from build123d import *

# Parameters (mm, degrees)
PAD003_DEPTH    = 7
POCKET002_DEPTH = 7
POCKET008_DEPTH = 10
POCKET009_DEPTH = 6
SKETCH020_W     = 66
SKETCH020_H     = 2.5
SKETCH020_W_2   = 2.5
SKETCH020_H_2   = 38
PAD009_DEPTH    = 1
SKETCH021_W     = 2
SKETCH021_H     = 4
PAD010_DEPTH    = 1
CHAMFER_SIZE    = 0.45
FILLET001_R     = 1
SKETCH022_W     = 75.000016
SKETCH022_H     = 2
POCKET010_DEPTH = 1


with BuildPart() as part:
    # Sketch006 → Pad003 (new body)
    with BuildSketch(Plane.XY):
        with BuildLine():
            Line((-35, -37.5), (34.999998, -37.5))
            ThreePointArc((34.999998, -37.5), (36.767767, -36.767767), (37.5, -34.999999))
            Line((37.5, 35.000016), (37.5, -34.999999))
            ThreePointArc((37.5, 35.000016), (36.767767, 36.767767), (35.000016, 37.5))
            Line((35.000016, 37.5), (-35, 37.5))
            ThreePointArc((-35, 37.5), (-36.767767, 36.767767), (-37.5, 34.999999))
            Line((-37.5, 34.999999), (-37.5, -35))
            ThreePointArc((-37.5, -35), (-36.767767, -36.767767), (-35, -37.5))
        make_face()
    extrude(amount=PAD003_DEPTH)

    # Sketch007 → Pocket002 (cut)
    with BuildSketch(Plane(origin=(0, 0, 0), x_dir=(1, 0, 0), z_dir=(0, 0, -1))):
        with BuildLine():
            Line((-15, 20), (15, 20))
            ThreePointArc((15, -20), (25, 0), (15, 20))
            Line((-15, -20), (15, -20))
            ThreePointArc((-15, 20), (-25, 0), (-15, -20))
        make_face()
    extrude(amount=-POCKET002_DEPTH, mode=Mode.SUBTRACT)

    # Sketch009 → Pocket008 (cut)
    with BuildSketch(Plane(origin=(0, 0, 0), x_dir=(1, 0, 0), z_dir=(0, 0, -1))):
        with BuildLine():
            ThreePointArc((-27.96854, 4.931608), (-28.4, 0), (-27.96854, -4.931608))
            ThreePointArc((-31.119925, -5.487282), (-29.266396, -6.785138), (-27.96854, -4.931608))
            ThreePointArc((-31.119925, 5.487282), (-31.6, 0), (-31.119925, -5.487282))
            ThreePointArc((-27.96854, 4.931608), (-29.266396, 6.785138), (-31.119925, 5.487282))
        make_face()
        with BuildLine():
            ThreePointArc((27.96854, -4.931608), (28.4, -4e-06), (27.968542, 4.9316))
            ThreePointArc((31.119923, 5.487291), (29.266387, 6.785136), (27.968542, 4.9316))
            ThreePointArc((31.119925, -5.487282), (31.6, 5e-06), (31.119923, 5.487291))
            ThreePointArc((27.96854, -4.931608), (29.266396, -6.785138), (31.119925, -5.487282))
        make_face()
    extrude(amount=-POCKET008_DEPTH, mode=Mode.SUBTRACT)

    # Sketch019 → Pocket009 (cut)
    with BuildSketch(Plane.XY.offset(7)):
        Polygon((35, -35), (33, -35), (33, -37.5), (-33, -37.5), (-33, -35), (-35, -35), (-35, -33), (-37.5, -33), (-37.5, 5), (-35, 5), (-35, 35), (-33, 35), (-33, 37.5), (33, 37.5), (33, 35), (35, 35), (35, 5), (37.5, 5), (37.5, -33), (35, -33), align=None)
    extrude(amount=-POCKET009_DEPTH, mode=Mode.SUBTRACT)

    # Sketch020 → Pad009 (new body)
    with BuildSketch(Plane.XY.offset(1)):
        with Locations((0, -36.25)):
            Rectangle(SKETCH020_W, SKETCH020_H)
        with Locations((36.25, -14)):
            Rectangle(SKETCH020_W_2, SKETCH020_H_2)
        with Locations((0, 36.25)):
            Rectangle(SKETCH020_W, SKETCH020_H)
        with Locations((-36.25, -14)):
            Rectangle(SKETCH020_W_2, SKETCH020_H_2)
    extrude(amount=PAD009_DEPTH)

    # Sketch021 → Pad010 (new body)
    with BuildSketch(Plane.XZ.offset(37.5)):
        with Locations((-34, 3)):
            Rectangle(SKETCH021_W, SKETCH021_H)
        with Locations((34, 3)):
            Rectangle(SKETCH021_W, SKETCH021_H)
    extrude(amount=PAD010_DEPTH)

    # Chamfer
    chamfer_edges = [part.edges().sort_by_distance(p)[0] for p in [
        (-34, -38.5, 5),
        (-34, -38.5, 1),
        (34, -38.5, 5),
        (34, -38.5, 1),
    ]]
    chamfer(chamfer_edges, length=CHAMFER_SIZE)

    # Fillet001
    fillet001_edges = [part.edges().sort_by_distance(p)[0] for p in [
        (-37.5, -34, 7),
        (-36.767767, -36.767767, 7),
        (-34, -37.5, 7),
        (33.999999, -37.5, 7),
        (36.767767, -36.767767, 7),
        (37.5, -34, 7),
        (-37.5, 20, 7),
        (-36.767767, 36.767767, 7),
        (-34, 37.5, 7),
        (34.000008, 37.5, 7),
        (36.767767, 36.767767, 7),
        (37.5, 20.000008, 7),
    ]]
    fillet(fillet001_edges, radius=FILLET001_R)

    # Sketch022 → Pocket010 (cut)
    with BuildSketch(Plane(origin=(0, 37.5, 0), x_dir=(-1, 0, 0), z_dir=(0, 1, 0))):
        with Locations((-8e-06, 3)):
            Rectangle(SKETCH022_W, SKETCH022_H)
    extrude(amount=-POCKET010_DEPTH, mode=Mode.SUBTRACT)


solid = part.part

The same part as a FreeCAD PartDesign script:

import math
import FreeCAD as App
import Part
import Sketcher

V = App.Vector
Q = App.Units.Quantity


def edges_at(feature, points):
    """Names of the edges that pass closest to the given points."""
    edges = feature.Shape.Edges
    near = lambda p: min(range(len(edges)), key=lambda i: edges[i].distToShape(Part.Vertex(*p))[0])
    return sorted({f"Edge{near(p) + 1}" for p in points})


def add_polygon(sketch, points):
    """Adds a closed chain of lines whose ends are joined by coincident constraints."""
    first, n = sketch.GeometryCount, len(points)
    for a, b in zip(points, points[1:] + points[:1]):
        sketch.addGeometry(Part.LineSegment(App.Vector(*a, 0), App.Vector(*b, 0)), False)
    for i in range(n):
        sketch.addConstraint(Sketcher.Constraint("Coincident", first + i, 2, first + (i + 1) % n, 1))

doc = App.newDocument("Part")
body = doc.addObject("PartDesign::Body", "Body")

# Sketch on XY plane
sketch1 = doc.addObject("Sketcher::SketchObject", "Sketch")
body.addObject(sketch1)
sketch1.AttachmentSupport = (doc.XY_Plane, [""])
sketch1.MapMode = "FlatFace"
sketch1.addGeometry([
    Part.LineSegment(V(-35, -37.5, 0), V(35, -37.5, 0)),  # 0
    Part.ArcOfCircle(Part.Circle(V(35, -35, 0), V(0, 0, 1), 2.5), math.radians(-90), math.radians(0)),  # 1
    Part.LineSegment(V(37.5, -35, 0), V(37.5, 35, 0)),  # 2
    Part.ArcOfCircle(Part.Circle(V(35, 35, 0), V(0, 0, 1), 2.5), math.radians(0), math.radians(90)),  # 3
    Part.LineSegment(V(35, 37.5, 0), V(-35, 37.5, 0)),  # 4
    Part.ArcOfCircle(Part.Circle(V(-35, 35, 0), V(0, 0, 1), 2.5), math.radians(90), math.radians(180)),  # 5
    Part.LineSegment(V(-37.5, 35, 0), V(-37.5, -35, 0)),  # 6
    Part.ArcOfCircle(Part.Circle(V(-35, -35, 0), V(0, 0, 1), 2.5), math.radians(180), math.radians(270)),  # 7
], False)
sketch1.addConstraint([
    Sketcher.Constraint("Tangent", 0, 2, 1, 1),
    Sketcher.Constraint("Tangent", 1, 2, 2, 1),
    Sketcher.Constraint("Coincident", 2, 2, 3, 1),
    Sketcher.Constraint("Coincident", 3, 2, 4, 1),
    Sketcher.Constraint("Tangent", 4, 2, 5, 1),
    Sketcher.Constraint("Tangent", 5, 2, 6, 1),
    Sketcher.Constraint("Tangent", 6, 2, 7, 1),
    Sketcher.Constraint("Tangent", 7, 2, 0, 1),
    Sketcher.Constraint("Horizontal", 0),
    Sketcher.Constraint("Vertical", 2),
    Sketcher.Constraint("Horizontal", 4),
    Sketcher.Constraint("Vertical", 6),
    Sketcher.Constraint("Equal", 1, 3),
    Sketcher.Constraint("Equal", 3, 5),
    Sketcher.Constraint("Equal", 5, 7),
    Sketcher.Constraint("Symmetric", 1, 3, 5, 3, -1, 1),
    Sketcher.Constraint("Equal", 4, 2),
    Sketcher.Constraint("Equal", 0, 6),
    Sketcher.Constraint("Radius", 1, Q("2.5 mm")),
    Sketcher.Constraint("DistanceX", 0, 1, 0, 2, Q("69.999998 mm")),
    Sketcher.Constraint("DistanceX", 4, 2, 4, 1, Q("70.000016 mm")),
])
pad1 = doc.addObject("PartDesign::Pad", "Pad")
body.addObject(pad1)
pad1.Profile = sketch1
pad1.Length = 7

# Sketch on XY plane
sketch2 = doc.addObject("Sketcher::SketchObject", "Sketch001")
body.addObject(sketch2)
sketch2.AttachmentSupport = (doc.XY_Plane, [""])
sketch2.MapMode = "FlatFace"
sketch2.addGeometry([
    Part.LineSegment(V(15, -20, 0), V(-15, -20, 0)),
    Part.ArcOfCircle(Part.Circle(V(0, 0, 0), V(0, 0, 1), 25), math.radians(127), math.radians(233)),
    Part.LineSegment(V(-15, 20, 0), V(15, 20, 0)),
    Part.ArcOfCircle(Part.Circle(V(0, 0, 0), V(0, 0, 1), 25), math.radians(-53), math.radians(53)),
], False)
sketch2.addConstraint([
    Sketcher.Constraint("Coincident", 0, 2, 1, 2),
    Sketcher.Constraint("Coincident", 1, 1, 2, 1),
    Sketcher.Constraint("Coincident", 2, 2, 3, 2),
    Sketcher.Constraint("Coincident", 3, 1, 0, 1),
    Sketcher.Constraint("Horizontal", 0),
    Sketcher.Constraint("Horizontal", 2),
    Sketcher.Constraint("Coincident", 1, 3, -1, 1),
    Sketcher.Constraint("Coincident", 3, 3, -1, 1),
    Sketcher.Constraint("Equal", 1, 3),
    Sketcher.Constraint("Vertical", 0, 2, 1, 1),
    Sketcher.Constraint("Radius", 1, Q("25 mm")),
    Sketcher.Constraint("DistanceX", 0, 2, 0, 1, Q("30 mm")),
])
pocket1 = doc.addObject("PartDesign::Pocket", "Pocket")
body.addObject(pocket1)
pocket1.Profile = sketch2
pocket1.Length = 7
pocket1.Reversed = True

# Sketch on XY plane
sketch3 = doc.addObject("Sketcher::SketchObject", "Sketch002")
body.addObject(sketch3)
sketch3.AttachmentSupport = (doc.XY_Plane, [""])
sketch3.MapMode = "FlatFace"
sketch3.addGeometry([
    Part.ArcOfCircle(Part.Circle(V(0, 0, 0), V(0, 0, 1), 28.4), math.radians(170), math.radians(190)),  # 0
    Part.ArcOfCircle(Part.Circle(V(-29.5, -5.2, 0), V(0, 0, 1), 1.6), math.radians(-170), math.radians(10)),  # 1
    Part.ArcOfCircle(Part.Circle(V(0, 0, 0), V(0, 0, 1), 31.6), math.radians(170), math.radians(190)),  # 2
    Part.ArcOfCircle(Part.Circle(V(-29.5, 5.2, 0), V(0, 0, 1), 1.6), math.radians(-10), math.radians(170)),  # 3
    Part.ArcOfCircle(Part.Circle(V(0, 0, 0), V(0, 0, 1), 28.4), math.radians(-10), math.radians(10)),  # 4
    Part.ArcOfCircle(Part.Circle(V(29.5, 5.2, 0), V(0, 0, 1), 1.6), math.radians(10), math.radians(190)),  # 5
    Part.ArcOfCircle(Part.Circle(V(0, 0, 0), V(0, 0, 1), 31.6), math.radians(-10), math.radians(10)),  # 6
    Part.ArcOfCircle(Part.Circle(V(29.5, -5.2, 0), V(0, 0, 1), 1.6), math.radians(170), math.radians(350)),  # 7
], False)
sketch3.addConstraint([
    Sketcher.Constraint("Tangent", 0, 2, 1, 2),
    Sketcher.Constraint("Tangent", 1, 1, 2, 2),
    Sketcher.Constraint("Tangent", 2, 1, 3, 2),
    Sketcher.Constraint("Tangent", 3, 1, 0, 1),
    Sketcher.Constraint("Tangent", 4, 2, 5, 2),
    Sketcher.Constraint("Tangent", 5, 1, 6, 2),
    Sketcher.Constraint("Coincident", 6, 1, 7, 2),
    Sketcher.Constraint("Coincident", 7, 1, 4, 1),
    Sketcher.Constraint("Coincident", 2, 3, -1, 1),
    Sketcher.Constraint("Coincident", 4, 3, -1, 1),
    Sketcher.Constraint("Equal", 1, 3),
    Sketcher.Constraint("Equal", 3, 5),
    Sketcher.Constraint("Equal", 5, 7),
    Sketcher.Constraint("Symmetric", 1, 3, 5, 3, -1, 1),
    Sketcher.Constraint("Horizontal", 3, 3, 5, 3),
    Sketcher.Constraint("Horizontal", 1, 3, 7, 3),
    Sketcher.Constraint("Vertical", 4, 2, 7, 1),
    Sketcher.Constraint("Radius", 1, Q("1.6 mm")),
    Sketcher.Constraint("Radius", 0, Q("28.399985 mm")),
    Sketcher.Constraint("Radius", 2, Q("31.599996 mm")),
    Sketcher.Constraint("Radius", 6, Q("31.599982 mm")),
    Sketcher.Constraint("DistanceY", 7, 1, -1, 1, Q("4.9316 mm")),
    Sketcher.Constraint("DistanceY", 6, 1, 4, 2, Q("10.418899 mm")),
])
pocket2 = doc.addObject("PartDesign::Pocket", "Pocket001")
body.addObject(pocket2)
pocket2.Profile = sketch3
pocket2.Length = 10
pocket2.Reversed = True

# Sketch on XY plane
sketch4 = doc.addObject("Sketcher::SketchObject", "Sketch003")
body.addObject(sketch4)
sketch4.AttachmentSupport = (doc.XY_Plane, [""])
sketch4.MapMode = "FlatFace"
sketch4.AttachmentOffset = App.Placement(V(0, 0, 7), App.Rotation())
add_polygon(sketch4, [(33, -35), (35, -35), (35, -33), (37.5, -33), (37.5, 5), (35, 5), (35, 35), (33, 35), (33, 37.5), (-33, 37.5), (-33, 35), (-35, 35), (-35, 5), (-37.5, 5), (-37.5, -33), (-35, -33), (-35, -35), (-33, -35), (-33, -37.5), (33, -37.5)])  # lines 0-19
sketch4.addConstraint([
    Sketcher.Constraint("Horizontal", 0),
    Sketcher.Constraint("Vertical", 1),
    Sketcher.Constraint("Horizontal", 2),
    Sketcher.Constraint("Vertical", 3),
    Sketcher.Constraint("Horizontal", 4),
    Sketcher.Constraint("Vertical", 5),
    Sketcher.Constraint("Horizontal", 6),
    Sketcher.Constraint("Vertical", 7),
    Sketcher.Constraint("Horizontal", 8),
    Sketcher.Constraint("Vertical", 9),
    Sketcher.Constraint("Horizontal", 10),
    Sketcher.Constraint("Vertical", 11),
    Sketcher.Constraint("Horizontal", 12),
    Sketcher.Constraint("Vertical", 13),
    Sketcher.Constraint("Horizontal", 14),
    Sketcher.Constraint("Vertical", 15),
    Sketcher.Constraint("Horizontal", 16),
    Sketcher.Constraint("Vertical", 17),
    Sketcher.Constraint("Horizontal", 18),
    Sketcher.Constraint("Vertical", 19),
    Sketcher.Constraint("Symmetric", 0, 2, 10, 2, -1, 1),
    Sketcher.Constraint("Symmetric", 5, 2, 15, 2, -1, 1),
    Sketcher.Constraint("Symmetric", 7, 2, 17, 2, -1, 1),
    Sketcher.Constraint("Symmetric", 6, 2, 9, 2, -2),
    Sketcher.Constraint("Symmetric", 4, 2, 11, 2, -2),
    Sketcher.Constraint("Symmetric", 2, 2, 13, 2, -2),
    Sketcher.Constraint("Vertical", 7, 2, 18, 2),
    Sketcher.Constraint("Equal", 16, 1),
    Sketcher.Constraint("Equal", 14, 7),
    Sketcher.Constraint("DistanceX", 0, 1, 0, 2, Q("2 mm")),
    Sketcher.Constraint("DistanceX", 8, 2, 8, 1, Q("66 mm")),
    Sketcher.Constraint("DistanceY", 3, 1, 3, 2, Q("38 mm")),
    Sketcher.Constraint("DistanceY", 5, 1, 5, 2, Q("30 mm")),
    Sketcher.Constraint("DistanceX", 2, 1, 2, 2, Q("2.5 mm")),
])
pocket3 = doc.addObject("PartDesign::Pocket", "Pocket002")
body.addObject(pocket3)
pocket3.Profile = sketch4
pocket3.Length = 6

# Sketch on XY plane
sketch5 = doc.addObject("Sketcher::SketchObject", "Sketch004")
body.addObject(sketch5)
sketch5.AttachmentSupport = (doc.XY_Plane, [""])
sketch5.MapMode = "FlatFace"
sketch5.AttachmentOffset = App.Placement(V(0, 0, 1), App.Rotation())
add_polygon(sketch5, [(-33, -35), (-33, -37.5), (33, -37.5), (33, -35)])  # lines 0-3
add_polygon(sketch5, [(35, 5), (35, -33), (37.5, -33), (37.5, 5)])  # lines 4-7
add_polygon(sketch5, [(-33, 37.5), (-33, 35), (33, 35), (33, 37.5)])  # lines 8-11
add_polygon(sketch5, [(-37.5, 5), (-37.5, -33), (-35, -33), (-35, 5)])  # lines 12-15
sketch5.addConstraint([
    Sketcher.Constraint("Vertical", 0),
    Sketcher.Constraint("Horizontal", 1),
    Sketcher.Constraint("Vertical", 2),
    Sketcher.Constraint("Horizontal", 3),
    Sketcher.Constraint("Vertical", 4),
    Sketcher.Constraint("Horizontal", 5),
    Sketcher.Constraint("Vertical", 6),
    Sketcher.Constraint("Horizontal", 7),
    Sketcher.Constraint("Vertical", 8),
    Sketcher.Constraint("Horizontal", 9),
    Sketcher.Constraint("Vertical", 10),
    Sketcher.Constraint("Horizontal", 11),
    Sketcher.Constraint("Vertical", 12),
    Sketcher.Constraint("Horizontal", 13),
    Sketcher.Constraint("Vertical", 14),
    Sketcher.Constraint("Horizontal", 15),
    Sketcher.Constraint("Symmetric", 2, 2, 8, 2, -1, 1),
    Sketcher.Constraint("Symmetric", 0, 2, 10, 2, -1, 1),
    Sketcher.Constraint("Symmetric", 5, 2, 12, 2, -2),
    Sketcher.Constraint("Symmetric", 7, 2, 14, 2, -2),
    Sketcher.Constraint("Vertical", 3, 2, 8, 2),
    Sketcher.Constraint("Equal", 15, 0),
    Sketcher.Constraint("DistanceX", 1, 1, 1, 2, Q("66 mm")),
    Sketcher.Constraint("DistanceY", 4, 2, 4, 1, Q("38 mm")),
    Sketcher.Constraint("DistanceX", 5, 1, 5, 2, Q("2.5 mm")),
    Sketcher.Constraint("DistanceY", 2, 2, -1, 1, Q("35 mm")),
    Sketcher.Constraint("DistanceX", -1, 1, 4, 2, Q("35 mm")),
    Sketcher.Constraint("DistanceY", 4, 2, -1, 1, Q("33 mm")),
])
pad2 = doc.addObject("PartDesign::Pad", "Pad001")
body.addObject(pad2)
pad2.Profile = sketch5
pad2.Length = 1

# Sketch on XZ plane
sketch6 = doc.addObject("Sketcher::SketchObject", "Sketch005")
body.addObject(sketch6)
sketch6.AttachmentSupport = (doc.XZ_Plane, [""])
sketch6.MapMode = "FlatFace"
sketch6.AttachmentOffset = App.Placement(V(0, 0, 37.5), App.Rotation())
add_polygon(sketch6, [(-35, 5), (-35, 1), (-33, 1), (-33, 5)])  # lines 0-3
add_polygon(sketch6, [(33, 5), (33, 1), (35, 1), (35, 5)])  # lines 4-7
sketch6.addConstraint([
    Sketcher.Constraint("Vertical", 0),
    Sketcher.Constraint("Horizontal", 1),
    Sketcher.Constraint("Vertical", 2),
    Sketcher.Constraint("Horizontal", 3),
    Sketcher.Constraint("Vertical", 4),
    Sketcher.Constraint("Horizontal", 5),
    Sketcher.Constraint("Vertical", 6),
    Sketcher.Constraint("Horizontal", 7),
    Sketcher.Constraint("Symmetric", 1, 2, 4, 2, -2),
    Sketcher.Constraint("Symmetric", 3, 2, 6, 2, -2),
    Sketcher.Constraint("DistanceX", 1, 1, 1, 2, Q("2 mm")),
    Sketcher.Constraint("DistanceY", 0, 2, 0, 1, Q("4 mm")),
    Sketcher.Constraint("DistanceX", 0, 2, -1, 1, Q("35 mm")),
    Sketcher.Constraint("DistanceY", -1, 1, 0, 2, Q("1 mm")),
])
pad3 = doc.addObject("PartDesign::Pad", "Pad002")
body.addObject(pad3)
pad3.Profile = sketch6
pad3.Length = 1
doc.recompute()

chamfer = doc.addObject("PartDesign::Chamfer", "Chamfer")
body.addObject(chamfer)
chamfer.Base = (pad3, edges_at(pad3, [
    (-34, -38.5, 5),
    (-34, -38.5, 1),
    (34, -38.5, 5),
    (34, -38.5, 1),
]))
chamfer.Size = 0.45
doc.recompute()

fillet = doc.addObject("PartDesign::Fillet", "Fillet")
body.addObject(fillet)
fillet.Base = (chamfer, edges_at(chamfer, [
    (-37.5, -34, 7),
    (-36.768, -36.768, 7),
    (-34, -37.5, 7),
    (34, -37.5, 7),
    (36.768, -36.768, 7),
    (37.5, -34, 7),
    (-37.5, 20, 7),
    (-36.768, 36.768, 7),
    (-34, 37.5, 7),
    (34, 37.5, 7),
    (36.768, 36.768, 7),
    (37.5, 20, 7),
]))
fillet.Radius = 1

# Sketch on XZ plane
sketch7 = doc.addObject("Sketcher::SketchObject", "Sketch006")
body.addObject(sketch7)
sketch7.AttachmentSupport = (doc.XZ_Plane, [""])
sketch7.MapMode = "FlatFace"
sketch7.AttachmentOffset = App.Placement(V(0, 0, -37.5), App.Rotation())
add_polygon(sketch7, [(37.5, 4), (37.5, 2), (-37.5, 2), (-37.5, 4)])  # lines 0-3
sketch7.addConstraint([
    Sketcher.Constraint("Vertical", 0),
    Sketcher.Constraint("Horizontal", 1),
    Sketcher.Constraint("Vertical", 2),
    Sketcher.Constraint("Horizontal", 3),
    Sketcher.Constraint("DistanceY", 0, 2, 0, 1, Q("2 mm")),
    Sketcher.Constraint("DistanceY", -1, 1, 0, 2, Q("2 mm")),
    Sketcher.Constraint("DistanceX", 1, 2, -1, 1, Q("37.5 mm")),
    Sketcher.Constraint("DistanceX", 1, 2, 1, 1, Q("75.000016 mm")),
])
pocket4 = doc.addObject("PartDesign::Pocket", "Pocket003")
body.addObject(pocket4)
pocket4.Profile = sketch7
pocket4.Length = 1
pocket4.Reversed = True

doc.recompute()
